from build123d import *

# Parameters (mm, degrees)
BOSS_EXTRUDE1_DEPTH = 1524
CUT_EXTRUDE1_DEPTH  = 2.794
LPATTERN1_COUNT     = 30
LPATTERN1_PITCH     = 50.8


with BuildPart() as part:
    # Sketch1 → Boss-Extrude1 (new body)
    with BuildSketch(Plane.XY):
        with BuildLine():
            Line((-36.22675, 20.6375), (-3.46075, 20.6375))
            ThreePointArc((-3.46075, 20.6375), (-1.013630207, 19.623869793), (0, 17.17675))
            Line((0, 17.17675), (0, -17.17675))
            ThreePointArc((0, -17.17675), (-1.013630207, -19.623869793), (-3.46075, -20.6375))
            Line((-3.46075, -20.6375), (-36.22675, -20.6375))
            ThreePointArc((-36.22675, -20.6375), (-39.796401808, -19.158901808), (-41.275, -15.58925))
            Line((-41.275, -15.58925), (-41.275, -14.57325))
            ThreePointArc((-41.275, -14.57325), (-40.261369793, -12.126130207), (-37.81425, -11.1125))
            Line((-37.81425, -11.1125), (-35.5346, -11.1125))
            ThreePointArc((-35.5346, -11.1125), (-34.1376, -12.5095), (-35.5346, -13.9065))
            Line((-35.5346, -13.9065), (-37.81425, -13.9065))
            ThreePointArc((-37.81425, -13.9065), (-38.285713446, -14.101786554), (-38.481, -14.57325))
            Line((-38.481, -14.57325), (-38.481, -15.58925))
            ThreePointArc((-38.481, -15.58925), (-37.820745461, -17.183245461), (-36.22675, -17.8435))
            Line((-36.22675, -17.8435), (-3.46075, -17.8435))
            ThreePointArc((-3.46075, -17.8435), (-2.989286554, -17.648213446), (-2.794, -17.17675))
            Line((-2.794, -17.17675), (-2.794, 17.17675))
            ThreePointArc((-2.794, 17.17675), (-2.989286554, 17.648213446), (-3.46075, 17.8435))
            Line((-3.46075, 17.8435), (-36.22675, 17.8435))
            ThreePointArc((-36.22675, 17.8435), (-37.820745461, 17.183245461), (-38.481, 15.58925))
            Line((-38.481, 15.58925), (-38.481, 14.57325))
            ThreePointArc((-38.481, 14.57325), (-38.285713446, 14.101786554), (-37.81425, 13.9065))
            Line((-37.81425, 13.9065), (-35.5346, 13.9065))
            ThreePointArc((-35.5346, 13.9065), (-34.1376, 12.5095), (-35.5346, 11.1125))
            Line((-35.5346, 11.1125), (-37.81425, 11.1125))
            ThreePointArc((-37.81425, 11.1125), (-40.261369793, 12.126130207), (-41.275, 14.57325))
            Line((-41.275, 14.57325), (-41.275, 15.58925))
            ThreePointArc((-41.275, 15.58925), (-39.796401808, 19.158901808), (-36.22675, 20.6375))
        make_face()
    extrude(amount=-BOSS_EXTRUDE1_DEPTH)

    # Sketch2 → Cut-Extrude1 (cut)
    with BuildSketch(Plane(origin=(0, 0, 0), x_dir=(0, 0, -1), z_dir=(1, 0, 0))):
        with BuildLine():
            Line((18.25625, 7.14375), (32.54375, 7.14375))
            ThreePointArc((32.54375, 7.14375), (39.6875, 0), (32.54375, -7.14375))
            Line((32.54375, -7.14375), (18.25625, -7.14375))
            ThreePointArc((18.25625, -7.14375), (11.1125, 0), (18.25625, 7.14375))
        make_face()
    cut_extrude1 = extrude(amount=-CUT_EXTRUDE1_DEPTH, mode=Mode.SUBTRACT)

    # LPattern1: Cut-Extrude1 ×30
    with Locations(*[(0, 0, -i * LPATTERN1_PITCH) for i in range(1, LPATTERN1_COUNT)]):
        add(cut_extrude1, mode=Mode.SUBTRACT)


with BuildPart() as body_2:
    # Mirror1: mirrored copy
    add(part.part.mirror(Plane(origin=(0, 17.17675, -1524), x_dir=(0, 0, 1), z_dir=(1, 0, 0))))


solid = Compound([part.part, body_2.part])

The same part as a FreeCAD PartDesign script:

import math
import FreeCAD as App
import Part
import Sketcher

V = App.Vector
Q = App.Units.Quantity

doc = App.newDocument("Part")
params = doc.addObject("Spreadsheet::Sheet", "Params")
for row, (alias, value) in enumerate([
    ("sketch1_radius", "0.055 in"),
    ("sketch1_width", "1.29 in"),
    ("sketch1_height", "0.04 in"),
    ("pad1_length", "60 in"),
    ("sketch2_radius", "0.28125 in"),
    ("sketch2_height", "0.5625 in"),
    ("pocket1_length", "0.11 in"),
    ("linearpattern_pitch", "2 in"),
], start=1):
    params.set(f"A{row}", alias)
    params.set(f"B{row}", "=" + value)
    params.setAlias(f"B{row}", alias)

body = doc.addObject("PartDesign::Body", "Body")

# Sketch on XY plane
sketch1 = body.newObject("Sketcher::SketchObject", "Sketch")
sketch1.AttachmentSupport = (doc.getObject("XY_Plane"), [""])
sketch1.MapMode = "FlatFace"
sketch1.addGeometry([
    Part.LineSegment(V(-3.46075, 20.6375, 0), V(-36.22675, 20.6375, 0)),  # 0
    Part.ArcOfCircle(Part.Circle(V(-36.22675, 15.58925, 0), V(0, 0, 1), 5.04825), math.radians(90), math.radians(180)),  # 1
    Part.LineSegment(V(-41.275, 15.58925, 0), V(-41.275, 14.57325, 0)),  # 2
    Part.ArcOfCircle(Part.Circle(V(-37.81425, 14.57325, 0), V(0, 0, 1), 3.46075), math.radians(180), math.radians(270)),  # 3
    Part.LineSegment(V(-37.81425, 11.1125, 0), V(-35.5346, 11.1125, 0)),  # 4
    Part.ArcOfCircle(Part.Circle(V(-35.5346, 12.5095, 0), V(0, 0, 1), 1.397), math.radians(-90), math.radians(90)),  # 5
    Part.LineSegment(V(-35.5346, 13.9065, 0), V(-37.81425, 13.9065, 0)),  # 6
    Part.ArcOfCircle(Part.Circle(V(-37.81425, 14.57325, 0), V(0, 0, 1), 0.66675), math.radians(-180), math.radians(-90)),  # 7
    Part.LineSegment(V(-38.481, 14.57325, 0), V(-38.481, 15.58925, 0)),  # 8
    Part.ArcOfCircle(Part.Circle(V(-36.22675, 15.58925, 0), V(0, 0, 1), 2.25425), math.radians(90), math.radians(180)),  # 9
    Part.LineSegment(V(-36.22675, 17.8435, 0), V(-3.46075, 17.8435, 0)),  # 10
    Part.ArcOfCircle(Part.Circle(V(-3.46075, 17.17675, 0), V(0, 0, 1), 0.66675), math.radians(0), math.radians(90)),  # 11
    Part.LineSegment(V(-2.794, 17.17675, 0), V(-2.794, -17.17675, 0)),  # 12
    Part.ArcOfCircle(Part.Circle(V(-3.46075, -17.17675, 0), V(0, 0, 1), 0.66675), math.radians(-90), math.radians(0)),  # 13
    Part.LineSegment(V(-3.46075, -17.8435, 0), V(-36.22675, -17.8435, 0)),  # 14
    Part.ArcOfCircle(Part.Circle(V(-36.22675, -15.58925, 0), V(0, 0, 1), 2.25425), math.radians(-180), math.radians(-90)),  # 15
    Part.LineSegment(V(-38.481, -15.58925, 0), V(-38.481, -14.57325, 0)),  # 16
    Part.ArcOfCircle(Part.Circle(V(-37.81425, -14.57325, 0), V(0, 0, 1), 0.66675), math.radians(90), math.radians(180)),  # 17
    Part.LineSegment(V(-37.81425, -13.9065, 0), V(-35.5346, -13.9065, 0)),  # 18
    Part.ArcOfCircle(Part.Circle(V(-35.5346, -12.5095, 0), V(0, 0, 1), 1.397), math.radians(-90), math.radians(90)),  # 19
    Part.LineSegment(V(-35.5346, -11.1125, 0), V(-37.81425, -11.1125, 0)),  # 20
    Part.ArcOfCircle(Part.Circle(V(-37.81425, -14.57325, 0), V(0, 0, 1), 3.46075), math.radians(90), math.radians(180)),  # 21
    Part.LineSegment(V(-41.275, -14.57325, 0), V(-41.275, -15.58925, 0)),  # 22
    Part.ArcOfCircle(Part.Circle(V(-36.22675, -15.58925, 0), V(0, 0, 1), 5.04825), math.radians(180), math.radians(270)),  # 23
    Part.LineSegment(V(-36.22675, -20.6375, 0), V(-3.46075, -20.6375, 0)),  # 24
    Part.ArcOfCircle(Part.Circle(V(-3.46075, -17.17675, 0), V(0, 0, 1), 3.46075), math.radians(-90), math.radians(0)),  # 25
    Part.LineSegment(V(0, -17.17675, 0), V(0, 17.17675, 0)),  # 26
    Part.ArcOfCircle(Part.Circle(V(-3.46075, 17.17675, 0), V(0, 0, 1), 3.46075), math.radians(0), math.radians(90)),  # 27
], False)
sketch1.addConstraint([
    Sketcher.Constraint("Tangent", 0, 2, 1, 1),
    Sketcher.Constraint("Tangent", 1, 2, 2, 1),
    Sketcher.Constraint("Tangent", 2, 2, 3, 1),
    Sketcher.Constraint("Tangent", 3, 2, 4, 1),
    Sketcher.Constraint("Tangent", 4, 2, 5, 1),
    Sketcher.Constraint("Tangent", 5, 2, 6, 1),
    Sketcher.Constraint("Tangent", 6, 2, 7, 2),
    Sketcher.Constraint("Tangent", 7, 1, 8, 1),
    Sketcher.Constraint("Tangent", 8, 2, 9, 2),
    Sketcher.Constraint("Tangent", 9, 1, 10, 1),
    Sketcher.Constraint("Tangent", 10, 2, 11, 2),
    Sketcher.Constraint("Tangent", 11, 1, 12, 1),
    Sketcher.Constraint("Tangent", 12, 2, 13, 2),
    Sketcher.Constraint("Tangent", 13, 1, 14, 1),
    Sketcher.Constraint("Tangent", 14, 2, 15, 2),
    Sketcher.Constraint("Tangent", 15, 1, 16, 1),
    Sketcher.Constraint("Tangent", 16, 2, 17, 2),
    Sketcher.Constraint("Tangent", 17, 1, 18, 1),
    Sketcher.Constraint("Tangent", 18, 2, 19, 1),
    Sketcher.Constraint("Tangent", 19, 2, 20, 1),
    Sketcher.Constraint("Tangent", 20, 2, 21, 1),
    Sketcher.Constraint("Tangent", 21, 2, 22, 1),
    Sketcher.Constraint("Tangent", 22, 2, 23, 1),
    Sketcher.Constraint("Tangent", 23, 2, 24, 1),
    Sketcher.Constraint("Tangent", 24, 2, 25, 1),
    Sketcher.Constraint("Tangent", 25, 2, 26, 1),
    Sketcher.Constraint("Tangent", 26, 2, 27, 1),
    Sketcher.Constraint("Tangent", 27, 2, 0, 1),
    Sketcher.Constraint("Horizontal", 0),
    Sketcher.Constraint("Vertical", 2),
    Sketcher.Constraint("Horizontal", 4),
    Sketcher.Constraint("Horizontal", 6),
    Sketcher.Constraint("Vertical", 8),
    Sketcher.Constraint("Horizontal", 10),
    Sketcher.Constraint("Vertical", 12),
    Sketcher.Constraint("Horizontal", 14),
    Sketcher.Constraint("Vertical", 16),
    Sketcher.Constraint("Horizontal", 18),
    Sketcher.Constraint("Horizontal", 20),
    Sketcher.Constraint("Vertical", 22),
    Sketcher.Constraint("Horizontal", 24),
    Sketcher.Constraint("Vertical", 26),
    Sketcher.Constraint("Coincident", 7, 3, 3, 3),
    Sketcher.Constraint("Coincident", 9, 3, 1, 3),
    Sketcher.Constraint("Coincident", 21, 3, 17, 3),
    Sketcher.Constraint("Coincident", 23, 3, 15, 3),
    Sketcher.Constraint("Coincident", 25, 3, 13, 3),
    Sketcher.Constraint("Coincident", 27, 3, 11, 3),
    Sketcher.Constraint("Equal", 7, 11),
    Sketcher.Constraint("Equal", 11, 13),
    Sketcher.Constraint("Equal", 9, 15),
    Sketcher.Constraint("Equal", 13, 17),
    Sketcher.Constraint("Symmetric", 25, 2, 26, 2, -1, 1),
    Sketcher.Constraint("Symmetric", 3, 3, 17, 3, -1),
    Sketcher.Constraint("Vertical", 5, 3, 19, 3),
    Sketcher.Constraint("Radius", 5, Q("0.055 in")),
    Sketcher.Constraint("DistanceX", 0, 2, 0, 1, Q("1.29 in")),
    Sketcher.Constraint("DistanceY", 2, 2, 2, 1, Q("0.04 in")),
    Sketcher.Constraint("DistanceY", 13, 3, 9, 3, Q("1.29 in")),
    Sketcher.Constraint("DistanceY", 5, 3, 0, 2, Q("0.32 in")),
    Sketcher.Constraint("DistanceY", 12, 2, 12, 1, Q("1.3525 in")),
    Sketcher.Constraint("DistanceX", 5, 3, -1, 1, Q("1.399 in")),
])
sketch1.setExpression("Constraints[55]", "Params.sketch1_radius")
sketch1.setExpression("Constraints[56]", "Params.sketch1_width")
sketch1.setExpression("Constraints[57]", "Params.sketch1_height")
pad1 = body.newObject("PartDesign::Pad", "Pad")
pad1.Profile = sketch1
pad1.setExpression("Length", "Params.pad1_length")
pad1.Reversed = True

# Sketch on YZ plane
sketch2 = body.newObject("Sketcher::SketchObject", "Sketch001")
sketch2.AttachmentSupport = (doc.getObject("YZ_Plane"), [""])
sketch2.MapMode = "FlatFace"
sketch2.addGeometry([
    Part.LineSegment(V(7.14375, -32.54375, 0), V(7.14375, -18.25625, 0)),
    Part.ArcOfCircle(Part.Circle(V(0, -18.25625, 0), V(0, 0, 1), 7.14375), math.radians(0), math.radians(180)),
    Part.LineSegment(V(-7.14375, -18.25625, 0), V(-7.14375, -32.54375, 0)),
    Part.ArcOfCircle(Part.Circle(V(0, -32.54375, 0), V(0, 0, 1), 7.14375), math.radians(180), math.radians(360)),
], False)
sketch2.addConstraint([
    Sketcher.Constraint("Tangent", 0, 2, 1, 1),
    Sketcher.Constraint("Tangent", 1, 2, 2, 1),
    Sketcher.Constraint("Tangent", 2, 2, 3, 1),
    Sketcher.Constraint("Tangent", 3, 2, 0, 1),
    Sketcher.Constraint("Vertical", 0),
    Sketcher.Constraint("Vertical", 2),
    Sketcher.Constraint("PointOnObject", 1, 3, -2),
    Sketcher.Constraint("Radius", 1, Q("0.28125 in")),
    Sketcher.Constraint("DistanceY", 0, 1, 0, 2, Q("0.5625 in")),
    Sketcher.Constraint("DistanceY", 1, 3, -1, 1, Q("0.71875 in")),
])
sketch2.setExpression("Constraints[7]", "Params.sketch2_radius")
sketch2.setExpression("Constraints[8]", "Params.sketch2_height")
pocket1 = body.newObject("PartDesign::Pocket", "Pocket")
pocket1.Profile = sketch2
pocket1.setExpression("Length", "Params.pocket1_length")
doc.recompute()

linearpattern = body.newObject("PartDesign::LinearPattern", "LinearPattern")
linearpattern.Originals = [pocket1]
linearpattern.Direction = (doc.getObject("Z_Axis"), [""])
linearpattern.Mode = "offset"
linearpattern.setExpression("Offset", "Params.linearpattern_pitch")
linearpattern.Occurrences = 30
linearpattern.Reversed = True
body.Tip = linearpattern
body2 = doc.addObject("PartDesign::Body", "Body001")
doc.recompute()

mirroring = doc.addObject("Part::Mirroring", "Mirroring")
mirroring.Source = body
mirroring.Base = V(0, 17.17675, -1524)
mirroring.Normal = V(1, 0, 0)
body2.BaseFeature = mirroring
doc.recompute()
mirroring.Visibility = False

doc.recompute()
